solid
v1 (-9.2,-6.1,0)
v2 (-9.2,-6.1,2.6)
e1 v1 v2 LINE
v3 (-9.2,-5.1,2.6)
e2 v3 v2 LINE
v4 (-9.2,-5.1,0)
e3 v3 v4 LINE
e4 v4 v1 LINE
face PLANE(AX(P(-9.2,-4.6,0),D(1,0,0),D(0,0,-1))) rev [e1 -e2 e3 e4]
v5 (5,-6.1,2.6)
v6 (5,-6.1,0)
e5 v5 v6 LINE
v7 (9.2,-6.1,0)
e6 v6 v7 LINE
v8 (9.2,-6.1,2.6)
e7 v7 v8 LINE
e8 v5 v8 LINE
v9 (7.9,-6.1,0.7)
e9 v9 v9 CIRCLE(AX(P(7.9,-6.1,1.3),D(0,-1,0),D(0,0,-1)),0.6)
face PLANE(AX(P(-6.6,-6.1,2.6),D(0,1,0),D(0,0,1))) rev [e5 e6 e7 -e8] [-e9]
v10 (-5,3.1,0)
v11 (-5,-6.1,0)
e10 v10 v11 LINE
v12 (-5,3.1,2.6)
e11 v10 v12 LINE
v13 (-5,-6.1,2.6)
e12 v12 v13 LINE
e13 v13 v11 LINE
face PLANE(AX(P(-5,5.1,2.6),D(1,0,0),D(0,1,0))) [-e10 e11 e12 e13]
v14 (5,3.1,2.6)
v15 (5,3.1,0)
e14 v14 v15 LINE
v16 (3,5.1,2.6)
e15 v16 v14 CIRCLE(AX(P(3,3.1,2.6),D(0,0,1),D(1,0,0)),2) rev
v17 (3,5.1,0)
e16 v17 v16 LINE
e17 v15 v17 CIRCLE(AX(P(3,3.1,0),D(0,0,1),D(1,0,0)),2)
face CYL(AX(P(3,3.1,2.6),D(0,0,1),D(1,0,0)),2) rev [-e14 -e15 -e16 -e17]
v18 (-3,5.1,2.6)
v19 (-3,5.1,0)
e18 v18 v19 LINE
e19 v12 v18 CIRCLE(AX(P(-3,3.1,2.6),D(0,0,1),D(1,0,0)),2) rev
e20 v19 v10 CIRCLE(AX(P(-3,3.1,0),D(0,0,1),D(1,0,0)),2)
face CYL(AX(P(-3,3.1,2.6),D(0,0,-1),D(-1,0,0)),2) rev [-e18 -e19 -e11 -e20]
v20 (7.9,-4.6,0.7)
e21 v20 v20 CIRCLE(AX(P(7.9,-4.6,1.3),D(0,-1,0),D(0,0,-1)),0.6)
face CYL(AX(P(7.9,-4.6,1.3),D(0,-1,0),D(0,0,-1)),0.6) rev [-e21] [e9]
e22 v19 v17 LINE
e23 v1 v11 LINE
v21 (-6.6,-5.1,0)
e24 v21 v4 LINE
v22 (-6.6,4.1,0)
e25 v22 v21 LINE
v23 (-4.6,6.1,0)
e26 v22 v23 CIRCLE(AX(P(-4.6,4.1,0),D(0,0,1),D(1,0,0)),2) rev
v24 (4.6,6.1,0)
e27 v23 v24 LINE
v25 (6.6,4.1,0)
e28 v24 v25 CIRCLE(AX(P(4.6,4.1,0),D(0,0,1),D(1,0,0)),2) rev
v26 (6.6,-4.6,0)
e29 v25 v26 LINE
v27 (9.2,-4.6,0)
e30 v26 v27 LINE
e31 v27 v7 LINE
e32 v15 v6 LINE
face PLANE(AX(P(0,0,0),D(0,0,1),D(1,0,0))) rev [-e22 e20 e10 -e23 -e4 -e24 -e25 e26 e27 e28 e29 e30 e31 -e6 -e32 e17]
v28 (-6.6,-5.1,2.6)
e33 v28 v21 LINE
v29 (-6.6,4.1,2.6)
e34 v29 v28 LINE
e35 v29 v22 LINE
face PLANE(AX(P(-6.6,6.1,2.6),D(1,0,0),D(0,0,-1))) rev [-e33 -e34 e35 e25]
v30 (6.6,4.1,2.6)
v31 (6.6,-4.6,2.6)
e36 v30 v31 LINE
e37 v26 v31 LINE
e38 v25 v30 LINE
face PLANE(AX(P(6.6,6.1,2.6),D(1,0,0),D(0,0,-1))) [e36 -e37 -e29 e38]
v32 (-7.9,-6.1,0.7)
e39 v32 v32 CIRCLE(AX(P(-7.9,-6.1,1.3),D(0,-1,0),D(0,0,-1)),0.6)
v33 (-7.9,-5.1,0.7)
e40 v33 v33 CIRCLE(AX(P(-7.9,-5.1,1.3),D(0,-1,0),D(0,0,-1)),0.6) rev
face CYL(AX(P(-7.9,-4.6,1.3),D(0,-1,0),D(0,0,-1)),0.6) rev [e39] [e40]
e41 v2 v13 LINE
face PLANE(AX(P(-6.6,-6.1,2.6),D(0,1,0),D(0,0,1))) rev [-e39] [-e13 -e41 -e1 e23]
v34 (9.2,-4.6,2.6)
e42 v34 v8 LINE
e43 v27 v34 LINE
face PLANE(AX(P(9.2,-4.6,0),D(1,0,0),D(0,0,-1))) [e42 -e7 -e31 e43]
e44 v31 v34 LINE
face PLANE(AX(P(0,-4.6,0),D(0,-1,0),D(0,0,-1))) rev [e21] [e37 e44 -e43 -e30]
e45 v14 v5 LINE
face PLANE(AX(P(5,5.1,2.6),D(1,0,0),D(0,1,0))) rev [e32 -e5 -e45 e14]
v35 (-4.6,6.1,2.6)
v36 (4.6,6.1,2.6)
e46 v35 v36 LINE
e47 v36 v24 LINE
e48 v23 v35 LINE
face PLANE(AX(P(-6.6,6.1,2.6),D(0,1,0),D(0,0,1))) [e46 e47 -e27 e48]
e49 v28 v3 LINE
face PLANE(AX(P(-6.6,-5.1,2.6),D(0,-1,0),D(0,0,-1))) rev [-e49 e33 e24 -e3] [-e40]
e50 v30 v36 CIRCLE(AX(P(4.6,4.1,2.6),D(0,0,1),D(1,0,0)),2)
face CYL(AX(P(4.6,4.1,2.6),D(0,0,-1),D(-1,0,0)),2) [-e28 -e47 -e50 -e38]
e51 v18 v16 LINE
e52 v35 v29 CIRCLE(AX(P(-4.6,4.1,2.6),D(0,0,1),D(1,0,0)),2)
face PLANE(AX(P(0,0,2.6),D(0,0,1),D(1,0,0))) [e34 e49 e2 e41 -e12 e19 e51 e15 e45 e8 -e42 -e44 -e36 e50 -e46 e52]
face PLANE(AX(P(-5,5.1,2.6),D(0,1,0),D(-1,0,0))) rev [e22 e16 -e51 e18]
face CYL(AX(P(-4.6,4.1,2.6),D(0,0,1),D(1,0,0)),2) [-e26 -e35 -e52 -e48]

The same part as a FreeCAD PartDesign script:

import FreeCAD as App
import Part
import Sketcher
from FreeCAD import Vector


def edges_at(feature, points):
    """Names of the edges that pass closest to the given points."""
    edges = feature.Shape.Edges
    near = lambda p: min(range(len(edges)), key=lambda i: edges[i].distToShape(Part.Vertex(*p))[0])
    return sorted({f"Edge{near(p) + 1}" for p in points})


def add_polygon(sketch, points):
    """Adds a closed chain of lines whose ends are joined by coincident constraints."""
    first, n = sketch.GeometryCount, len(points)
    for a, b in zip(points, points[1:] + points[:1]):
        sketch.addGeometry(Part.LineSegment(App.Vector(*a, 0), App.Vector(*b, 0)), False)
    for i in range(n):
        sketch.addConstraint(Sketcher.Constraint("Coincident", first + i, 2, first + (i + 1) % n, 1))

doc = App.newDocument("Part")
body = doc.addObject("PartDesign::Body", "Body")

sketch1 = body.newObject("Sketcher::SketchObject", "Sketch")
sketch1.AttachmentSupport = (doc.getObject("XY_Plane"), [""])
sketch1.MapMode = "FlatFace"
add_polygon(sketch1, [(6.6, 6.1), (-6.6, 6.1), (-6.6, -6.1), (-5, -6.1), (-5, 5.1), (5, 5.1), (5, -6.1), (6.6, -6.1)])
sketch1.addConstraint(Sketcher.Constraint("Horizontal", 0))
sketch1.addConstraint(Sketcher.Constraint("Vertical", 1))
sketch1.addConstraint(Sketcher.Constraint("Horizontal", 2))
sketch1.addConstraint(Sketcher.Constraint("Vertical", 3))
sketch1.addConstraint(Sketcher.Constraint("Horizontal", 4))
sketch1.addConstraint(Sketcher.Constraint("Vertical", 5))
sketch1.addConstraint(Sketcher.Constraint("Horizontal", 6))
sketch1.addConstraint(Sketcher.Constraint("Vertical", 7))
sketch1.addConstraint(Sketcher.Constraint("Symmetric", 0, 2, 6, 2, -1, 1))
sketch1.addConstraint(Sketcher.Constraint("Symmetric", 2, 2, 5, 2, -2))
sketch1.addConstraint(Sketcher.Constraint("DistanceX", 4, 1, 4, 2, 10.0))
sketch1.addConstraint(Sketcher.Constraint("DistanceX", 0, 2, 0, 1, 13.2))
sketch1.addConstraint(Sketcher.Constraint("DistanceY", 1, 2, 1, 1, 12.2))
sketch1.addConstraint(Sketcher.Constraint("DistanceY", 3, 1, 3, 2, 11.2))
pad1 = body.newObject("PartDesign::Pad", "Pad")
pad1.Profile = sketch1
pad1.Length = 2.6
doc.recompute()

fillet = body.newObject("PartDesign::Fillet", "Fillet")
fillet.Base = (pad1, edges_at(pad1, [
    (5, 5.1, 1.3),
    (-5, 5.1, 1.3),
    (-6.6, 6.1, 1.3),
    (6.6, 6.1, 1.3),
]))
fillet.Radius = 2

sketch2 = body.newObject("Sketcher::SketchObject", "Sketch001")
sketch2.AttachmentSupport = (doc.getObject("XZ_Plane"), [""])
sketch2.MapMode = "FlatFace"
sketch2.AttachmentOffset = App.Placement(Vector(0, 0, 6.1), App.Rotation())
add_polygon(sketch2, [(-9.2, 2.6), (-9.2, 0), (-6.6, 0), (-6.6, 2.6)])
sketch2.addGeometry(Part.Circle(Vector(-7.9, 1.3, 0), Vector(0, 0, 1), 0.6), False)
add_polygon(sketch2, [(6.6, 2.6), (6.6, 0), (9.2, 0), (9.2, 2.6)])
sketch2.addGeometry(Part.Circle(Vector(7.9, 1.3, 0), Vector(0, 0, 1), 0.6), False)
sketch2.addConstraint(Sketcher.Constraint("Vertical", 0))
sketch2.addConstraint(Sketcher.Constraint("Horizontal", 1))
sketch2.addConstraint(Sketcher.Constraint("Vertical", 2))
sketch2.addConstraint(Sketcher.Constraint("Horizontal", 3))
sketch2.addConstraint(Sketcher.Constraint("Vertical", 5))
sketch2.addConstraint(Sketcher.Constraint("Horizontal", 6))
sketch2.addConstraint(Sketcher.Constraint("Vertical", 7))
sketch2.addConstraint(Sketcher.Constraint("Horizontal", 8))
sketch2.addConstraint(Sketcher.Constraint("Equal", 4, 9))
sketch2.addConstraint(Sketcher.Constraint("Symmetric", 1, 2, 5, 2, -1, 1))
sketch2.addConstraint(Sketcher.Constraint("Symmetric", 4, 3, 9, 3, -2))
sketch2.addConstraint(Sketcher.Constraint("Symmetric", 0, 2, 6, 2, -2))
sketch2.addConstraint(Sketcher.Constraint("Horizontal", 3, 2, 7, 2))
sketch2.addConstraint(Sketcher.Constraint("Equal", 8, 0))
sketch2.addConstraint(Sketcher.Constraint("Diameter", 4, 1.2))
sketch2.addConstraint(Sketcher.Constraint("DistanceX", 1, 1, 1, 2, 2.6))
sketch2.addConstraint(Sketcher.Constraint("DistanceX", 4, 3, -1, 1, 7.9))
sketch2.addConstraint(Sketcher.Constraint("DistanceY", -1, 1, 4, 3, 1.3))
sketch2.addConstraint(Sketcher.Constraint("DistanceX", 0, 2, -1, 1, 9.2))
pad2 = body.newObject("PartDesign::Pad", "Pad001")
pad2.Profile = sketch2
pad2.Length = 1.5
pad2.Reversed = True

sketch3 = body.newObject("Sketcher::SketchObject", "Sketch002")
sketch3.AttachmentSupport = (doc.getObject("XY_Plane"), [""])
sketch3.MapMode = "FlatFace"
add_polygon(sketch3, [(-6.6, -4.6), (-6.6, -5.1), (-9.2, -5.1), (-9.2, -4.6)])
sketch3.addConstraint(Sketcher.Constraint("Vertical", 0))
sketch3.addConstraint(Sketcher.Constraint("Horizontal", 1))
sketch3.addConstraint(Sketcher.Constraint("Vertical", 2))
sketch3.addConstraint(Sketcher.Constraint("Horizontal", 3))
sketch3.addConstraint(Sketcher.Constraint("DistanceX", 1, 2, 1, 1, 2.6))
sketch3.addConstraint(Sketcher.Constraint("DistanceY", 0, 2, 0, 1, 0.5))
sketch3.addConstraint(Sketcher.Constraint("DistanceX", 0, 2, -1, 1, 6.6))
sketch3.addConstraint(Sketcher.Constraint("DistanceY", 0, 2, -1, 1, 5.1))
pocket1 = body.newObject("PartDesign::Pocket", "Pocket")
pocket1.Profile = sketch3
pocket1.Type = "ThroughAll"
pocket1.Reversed = True

doc.recompute()
